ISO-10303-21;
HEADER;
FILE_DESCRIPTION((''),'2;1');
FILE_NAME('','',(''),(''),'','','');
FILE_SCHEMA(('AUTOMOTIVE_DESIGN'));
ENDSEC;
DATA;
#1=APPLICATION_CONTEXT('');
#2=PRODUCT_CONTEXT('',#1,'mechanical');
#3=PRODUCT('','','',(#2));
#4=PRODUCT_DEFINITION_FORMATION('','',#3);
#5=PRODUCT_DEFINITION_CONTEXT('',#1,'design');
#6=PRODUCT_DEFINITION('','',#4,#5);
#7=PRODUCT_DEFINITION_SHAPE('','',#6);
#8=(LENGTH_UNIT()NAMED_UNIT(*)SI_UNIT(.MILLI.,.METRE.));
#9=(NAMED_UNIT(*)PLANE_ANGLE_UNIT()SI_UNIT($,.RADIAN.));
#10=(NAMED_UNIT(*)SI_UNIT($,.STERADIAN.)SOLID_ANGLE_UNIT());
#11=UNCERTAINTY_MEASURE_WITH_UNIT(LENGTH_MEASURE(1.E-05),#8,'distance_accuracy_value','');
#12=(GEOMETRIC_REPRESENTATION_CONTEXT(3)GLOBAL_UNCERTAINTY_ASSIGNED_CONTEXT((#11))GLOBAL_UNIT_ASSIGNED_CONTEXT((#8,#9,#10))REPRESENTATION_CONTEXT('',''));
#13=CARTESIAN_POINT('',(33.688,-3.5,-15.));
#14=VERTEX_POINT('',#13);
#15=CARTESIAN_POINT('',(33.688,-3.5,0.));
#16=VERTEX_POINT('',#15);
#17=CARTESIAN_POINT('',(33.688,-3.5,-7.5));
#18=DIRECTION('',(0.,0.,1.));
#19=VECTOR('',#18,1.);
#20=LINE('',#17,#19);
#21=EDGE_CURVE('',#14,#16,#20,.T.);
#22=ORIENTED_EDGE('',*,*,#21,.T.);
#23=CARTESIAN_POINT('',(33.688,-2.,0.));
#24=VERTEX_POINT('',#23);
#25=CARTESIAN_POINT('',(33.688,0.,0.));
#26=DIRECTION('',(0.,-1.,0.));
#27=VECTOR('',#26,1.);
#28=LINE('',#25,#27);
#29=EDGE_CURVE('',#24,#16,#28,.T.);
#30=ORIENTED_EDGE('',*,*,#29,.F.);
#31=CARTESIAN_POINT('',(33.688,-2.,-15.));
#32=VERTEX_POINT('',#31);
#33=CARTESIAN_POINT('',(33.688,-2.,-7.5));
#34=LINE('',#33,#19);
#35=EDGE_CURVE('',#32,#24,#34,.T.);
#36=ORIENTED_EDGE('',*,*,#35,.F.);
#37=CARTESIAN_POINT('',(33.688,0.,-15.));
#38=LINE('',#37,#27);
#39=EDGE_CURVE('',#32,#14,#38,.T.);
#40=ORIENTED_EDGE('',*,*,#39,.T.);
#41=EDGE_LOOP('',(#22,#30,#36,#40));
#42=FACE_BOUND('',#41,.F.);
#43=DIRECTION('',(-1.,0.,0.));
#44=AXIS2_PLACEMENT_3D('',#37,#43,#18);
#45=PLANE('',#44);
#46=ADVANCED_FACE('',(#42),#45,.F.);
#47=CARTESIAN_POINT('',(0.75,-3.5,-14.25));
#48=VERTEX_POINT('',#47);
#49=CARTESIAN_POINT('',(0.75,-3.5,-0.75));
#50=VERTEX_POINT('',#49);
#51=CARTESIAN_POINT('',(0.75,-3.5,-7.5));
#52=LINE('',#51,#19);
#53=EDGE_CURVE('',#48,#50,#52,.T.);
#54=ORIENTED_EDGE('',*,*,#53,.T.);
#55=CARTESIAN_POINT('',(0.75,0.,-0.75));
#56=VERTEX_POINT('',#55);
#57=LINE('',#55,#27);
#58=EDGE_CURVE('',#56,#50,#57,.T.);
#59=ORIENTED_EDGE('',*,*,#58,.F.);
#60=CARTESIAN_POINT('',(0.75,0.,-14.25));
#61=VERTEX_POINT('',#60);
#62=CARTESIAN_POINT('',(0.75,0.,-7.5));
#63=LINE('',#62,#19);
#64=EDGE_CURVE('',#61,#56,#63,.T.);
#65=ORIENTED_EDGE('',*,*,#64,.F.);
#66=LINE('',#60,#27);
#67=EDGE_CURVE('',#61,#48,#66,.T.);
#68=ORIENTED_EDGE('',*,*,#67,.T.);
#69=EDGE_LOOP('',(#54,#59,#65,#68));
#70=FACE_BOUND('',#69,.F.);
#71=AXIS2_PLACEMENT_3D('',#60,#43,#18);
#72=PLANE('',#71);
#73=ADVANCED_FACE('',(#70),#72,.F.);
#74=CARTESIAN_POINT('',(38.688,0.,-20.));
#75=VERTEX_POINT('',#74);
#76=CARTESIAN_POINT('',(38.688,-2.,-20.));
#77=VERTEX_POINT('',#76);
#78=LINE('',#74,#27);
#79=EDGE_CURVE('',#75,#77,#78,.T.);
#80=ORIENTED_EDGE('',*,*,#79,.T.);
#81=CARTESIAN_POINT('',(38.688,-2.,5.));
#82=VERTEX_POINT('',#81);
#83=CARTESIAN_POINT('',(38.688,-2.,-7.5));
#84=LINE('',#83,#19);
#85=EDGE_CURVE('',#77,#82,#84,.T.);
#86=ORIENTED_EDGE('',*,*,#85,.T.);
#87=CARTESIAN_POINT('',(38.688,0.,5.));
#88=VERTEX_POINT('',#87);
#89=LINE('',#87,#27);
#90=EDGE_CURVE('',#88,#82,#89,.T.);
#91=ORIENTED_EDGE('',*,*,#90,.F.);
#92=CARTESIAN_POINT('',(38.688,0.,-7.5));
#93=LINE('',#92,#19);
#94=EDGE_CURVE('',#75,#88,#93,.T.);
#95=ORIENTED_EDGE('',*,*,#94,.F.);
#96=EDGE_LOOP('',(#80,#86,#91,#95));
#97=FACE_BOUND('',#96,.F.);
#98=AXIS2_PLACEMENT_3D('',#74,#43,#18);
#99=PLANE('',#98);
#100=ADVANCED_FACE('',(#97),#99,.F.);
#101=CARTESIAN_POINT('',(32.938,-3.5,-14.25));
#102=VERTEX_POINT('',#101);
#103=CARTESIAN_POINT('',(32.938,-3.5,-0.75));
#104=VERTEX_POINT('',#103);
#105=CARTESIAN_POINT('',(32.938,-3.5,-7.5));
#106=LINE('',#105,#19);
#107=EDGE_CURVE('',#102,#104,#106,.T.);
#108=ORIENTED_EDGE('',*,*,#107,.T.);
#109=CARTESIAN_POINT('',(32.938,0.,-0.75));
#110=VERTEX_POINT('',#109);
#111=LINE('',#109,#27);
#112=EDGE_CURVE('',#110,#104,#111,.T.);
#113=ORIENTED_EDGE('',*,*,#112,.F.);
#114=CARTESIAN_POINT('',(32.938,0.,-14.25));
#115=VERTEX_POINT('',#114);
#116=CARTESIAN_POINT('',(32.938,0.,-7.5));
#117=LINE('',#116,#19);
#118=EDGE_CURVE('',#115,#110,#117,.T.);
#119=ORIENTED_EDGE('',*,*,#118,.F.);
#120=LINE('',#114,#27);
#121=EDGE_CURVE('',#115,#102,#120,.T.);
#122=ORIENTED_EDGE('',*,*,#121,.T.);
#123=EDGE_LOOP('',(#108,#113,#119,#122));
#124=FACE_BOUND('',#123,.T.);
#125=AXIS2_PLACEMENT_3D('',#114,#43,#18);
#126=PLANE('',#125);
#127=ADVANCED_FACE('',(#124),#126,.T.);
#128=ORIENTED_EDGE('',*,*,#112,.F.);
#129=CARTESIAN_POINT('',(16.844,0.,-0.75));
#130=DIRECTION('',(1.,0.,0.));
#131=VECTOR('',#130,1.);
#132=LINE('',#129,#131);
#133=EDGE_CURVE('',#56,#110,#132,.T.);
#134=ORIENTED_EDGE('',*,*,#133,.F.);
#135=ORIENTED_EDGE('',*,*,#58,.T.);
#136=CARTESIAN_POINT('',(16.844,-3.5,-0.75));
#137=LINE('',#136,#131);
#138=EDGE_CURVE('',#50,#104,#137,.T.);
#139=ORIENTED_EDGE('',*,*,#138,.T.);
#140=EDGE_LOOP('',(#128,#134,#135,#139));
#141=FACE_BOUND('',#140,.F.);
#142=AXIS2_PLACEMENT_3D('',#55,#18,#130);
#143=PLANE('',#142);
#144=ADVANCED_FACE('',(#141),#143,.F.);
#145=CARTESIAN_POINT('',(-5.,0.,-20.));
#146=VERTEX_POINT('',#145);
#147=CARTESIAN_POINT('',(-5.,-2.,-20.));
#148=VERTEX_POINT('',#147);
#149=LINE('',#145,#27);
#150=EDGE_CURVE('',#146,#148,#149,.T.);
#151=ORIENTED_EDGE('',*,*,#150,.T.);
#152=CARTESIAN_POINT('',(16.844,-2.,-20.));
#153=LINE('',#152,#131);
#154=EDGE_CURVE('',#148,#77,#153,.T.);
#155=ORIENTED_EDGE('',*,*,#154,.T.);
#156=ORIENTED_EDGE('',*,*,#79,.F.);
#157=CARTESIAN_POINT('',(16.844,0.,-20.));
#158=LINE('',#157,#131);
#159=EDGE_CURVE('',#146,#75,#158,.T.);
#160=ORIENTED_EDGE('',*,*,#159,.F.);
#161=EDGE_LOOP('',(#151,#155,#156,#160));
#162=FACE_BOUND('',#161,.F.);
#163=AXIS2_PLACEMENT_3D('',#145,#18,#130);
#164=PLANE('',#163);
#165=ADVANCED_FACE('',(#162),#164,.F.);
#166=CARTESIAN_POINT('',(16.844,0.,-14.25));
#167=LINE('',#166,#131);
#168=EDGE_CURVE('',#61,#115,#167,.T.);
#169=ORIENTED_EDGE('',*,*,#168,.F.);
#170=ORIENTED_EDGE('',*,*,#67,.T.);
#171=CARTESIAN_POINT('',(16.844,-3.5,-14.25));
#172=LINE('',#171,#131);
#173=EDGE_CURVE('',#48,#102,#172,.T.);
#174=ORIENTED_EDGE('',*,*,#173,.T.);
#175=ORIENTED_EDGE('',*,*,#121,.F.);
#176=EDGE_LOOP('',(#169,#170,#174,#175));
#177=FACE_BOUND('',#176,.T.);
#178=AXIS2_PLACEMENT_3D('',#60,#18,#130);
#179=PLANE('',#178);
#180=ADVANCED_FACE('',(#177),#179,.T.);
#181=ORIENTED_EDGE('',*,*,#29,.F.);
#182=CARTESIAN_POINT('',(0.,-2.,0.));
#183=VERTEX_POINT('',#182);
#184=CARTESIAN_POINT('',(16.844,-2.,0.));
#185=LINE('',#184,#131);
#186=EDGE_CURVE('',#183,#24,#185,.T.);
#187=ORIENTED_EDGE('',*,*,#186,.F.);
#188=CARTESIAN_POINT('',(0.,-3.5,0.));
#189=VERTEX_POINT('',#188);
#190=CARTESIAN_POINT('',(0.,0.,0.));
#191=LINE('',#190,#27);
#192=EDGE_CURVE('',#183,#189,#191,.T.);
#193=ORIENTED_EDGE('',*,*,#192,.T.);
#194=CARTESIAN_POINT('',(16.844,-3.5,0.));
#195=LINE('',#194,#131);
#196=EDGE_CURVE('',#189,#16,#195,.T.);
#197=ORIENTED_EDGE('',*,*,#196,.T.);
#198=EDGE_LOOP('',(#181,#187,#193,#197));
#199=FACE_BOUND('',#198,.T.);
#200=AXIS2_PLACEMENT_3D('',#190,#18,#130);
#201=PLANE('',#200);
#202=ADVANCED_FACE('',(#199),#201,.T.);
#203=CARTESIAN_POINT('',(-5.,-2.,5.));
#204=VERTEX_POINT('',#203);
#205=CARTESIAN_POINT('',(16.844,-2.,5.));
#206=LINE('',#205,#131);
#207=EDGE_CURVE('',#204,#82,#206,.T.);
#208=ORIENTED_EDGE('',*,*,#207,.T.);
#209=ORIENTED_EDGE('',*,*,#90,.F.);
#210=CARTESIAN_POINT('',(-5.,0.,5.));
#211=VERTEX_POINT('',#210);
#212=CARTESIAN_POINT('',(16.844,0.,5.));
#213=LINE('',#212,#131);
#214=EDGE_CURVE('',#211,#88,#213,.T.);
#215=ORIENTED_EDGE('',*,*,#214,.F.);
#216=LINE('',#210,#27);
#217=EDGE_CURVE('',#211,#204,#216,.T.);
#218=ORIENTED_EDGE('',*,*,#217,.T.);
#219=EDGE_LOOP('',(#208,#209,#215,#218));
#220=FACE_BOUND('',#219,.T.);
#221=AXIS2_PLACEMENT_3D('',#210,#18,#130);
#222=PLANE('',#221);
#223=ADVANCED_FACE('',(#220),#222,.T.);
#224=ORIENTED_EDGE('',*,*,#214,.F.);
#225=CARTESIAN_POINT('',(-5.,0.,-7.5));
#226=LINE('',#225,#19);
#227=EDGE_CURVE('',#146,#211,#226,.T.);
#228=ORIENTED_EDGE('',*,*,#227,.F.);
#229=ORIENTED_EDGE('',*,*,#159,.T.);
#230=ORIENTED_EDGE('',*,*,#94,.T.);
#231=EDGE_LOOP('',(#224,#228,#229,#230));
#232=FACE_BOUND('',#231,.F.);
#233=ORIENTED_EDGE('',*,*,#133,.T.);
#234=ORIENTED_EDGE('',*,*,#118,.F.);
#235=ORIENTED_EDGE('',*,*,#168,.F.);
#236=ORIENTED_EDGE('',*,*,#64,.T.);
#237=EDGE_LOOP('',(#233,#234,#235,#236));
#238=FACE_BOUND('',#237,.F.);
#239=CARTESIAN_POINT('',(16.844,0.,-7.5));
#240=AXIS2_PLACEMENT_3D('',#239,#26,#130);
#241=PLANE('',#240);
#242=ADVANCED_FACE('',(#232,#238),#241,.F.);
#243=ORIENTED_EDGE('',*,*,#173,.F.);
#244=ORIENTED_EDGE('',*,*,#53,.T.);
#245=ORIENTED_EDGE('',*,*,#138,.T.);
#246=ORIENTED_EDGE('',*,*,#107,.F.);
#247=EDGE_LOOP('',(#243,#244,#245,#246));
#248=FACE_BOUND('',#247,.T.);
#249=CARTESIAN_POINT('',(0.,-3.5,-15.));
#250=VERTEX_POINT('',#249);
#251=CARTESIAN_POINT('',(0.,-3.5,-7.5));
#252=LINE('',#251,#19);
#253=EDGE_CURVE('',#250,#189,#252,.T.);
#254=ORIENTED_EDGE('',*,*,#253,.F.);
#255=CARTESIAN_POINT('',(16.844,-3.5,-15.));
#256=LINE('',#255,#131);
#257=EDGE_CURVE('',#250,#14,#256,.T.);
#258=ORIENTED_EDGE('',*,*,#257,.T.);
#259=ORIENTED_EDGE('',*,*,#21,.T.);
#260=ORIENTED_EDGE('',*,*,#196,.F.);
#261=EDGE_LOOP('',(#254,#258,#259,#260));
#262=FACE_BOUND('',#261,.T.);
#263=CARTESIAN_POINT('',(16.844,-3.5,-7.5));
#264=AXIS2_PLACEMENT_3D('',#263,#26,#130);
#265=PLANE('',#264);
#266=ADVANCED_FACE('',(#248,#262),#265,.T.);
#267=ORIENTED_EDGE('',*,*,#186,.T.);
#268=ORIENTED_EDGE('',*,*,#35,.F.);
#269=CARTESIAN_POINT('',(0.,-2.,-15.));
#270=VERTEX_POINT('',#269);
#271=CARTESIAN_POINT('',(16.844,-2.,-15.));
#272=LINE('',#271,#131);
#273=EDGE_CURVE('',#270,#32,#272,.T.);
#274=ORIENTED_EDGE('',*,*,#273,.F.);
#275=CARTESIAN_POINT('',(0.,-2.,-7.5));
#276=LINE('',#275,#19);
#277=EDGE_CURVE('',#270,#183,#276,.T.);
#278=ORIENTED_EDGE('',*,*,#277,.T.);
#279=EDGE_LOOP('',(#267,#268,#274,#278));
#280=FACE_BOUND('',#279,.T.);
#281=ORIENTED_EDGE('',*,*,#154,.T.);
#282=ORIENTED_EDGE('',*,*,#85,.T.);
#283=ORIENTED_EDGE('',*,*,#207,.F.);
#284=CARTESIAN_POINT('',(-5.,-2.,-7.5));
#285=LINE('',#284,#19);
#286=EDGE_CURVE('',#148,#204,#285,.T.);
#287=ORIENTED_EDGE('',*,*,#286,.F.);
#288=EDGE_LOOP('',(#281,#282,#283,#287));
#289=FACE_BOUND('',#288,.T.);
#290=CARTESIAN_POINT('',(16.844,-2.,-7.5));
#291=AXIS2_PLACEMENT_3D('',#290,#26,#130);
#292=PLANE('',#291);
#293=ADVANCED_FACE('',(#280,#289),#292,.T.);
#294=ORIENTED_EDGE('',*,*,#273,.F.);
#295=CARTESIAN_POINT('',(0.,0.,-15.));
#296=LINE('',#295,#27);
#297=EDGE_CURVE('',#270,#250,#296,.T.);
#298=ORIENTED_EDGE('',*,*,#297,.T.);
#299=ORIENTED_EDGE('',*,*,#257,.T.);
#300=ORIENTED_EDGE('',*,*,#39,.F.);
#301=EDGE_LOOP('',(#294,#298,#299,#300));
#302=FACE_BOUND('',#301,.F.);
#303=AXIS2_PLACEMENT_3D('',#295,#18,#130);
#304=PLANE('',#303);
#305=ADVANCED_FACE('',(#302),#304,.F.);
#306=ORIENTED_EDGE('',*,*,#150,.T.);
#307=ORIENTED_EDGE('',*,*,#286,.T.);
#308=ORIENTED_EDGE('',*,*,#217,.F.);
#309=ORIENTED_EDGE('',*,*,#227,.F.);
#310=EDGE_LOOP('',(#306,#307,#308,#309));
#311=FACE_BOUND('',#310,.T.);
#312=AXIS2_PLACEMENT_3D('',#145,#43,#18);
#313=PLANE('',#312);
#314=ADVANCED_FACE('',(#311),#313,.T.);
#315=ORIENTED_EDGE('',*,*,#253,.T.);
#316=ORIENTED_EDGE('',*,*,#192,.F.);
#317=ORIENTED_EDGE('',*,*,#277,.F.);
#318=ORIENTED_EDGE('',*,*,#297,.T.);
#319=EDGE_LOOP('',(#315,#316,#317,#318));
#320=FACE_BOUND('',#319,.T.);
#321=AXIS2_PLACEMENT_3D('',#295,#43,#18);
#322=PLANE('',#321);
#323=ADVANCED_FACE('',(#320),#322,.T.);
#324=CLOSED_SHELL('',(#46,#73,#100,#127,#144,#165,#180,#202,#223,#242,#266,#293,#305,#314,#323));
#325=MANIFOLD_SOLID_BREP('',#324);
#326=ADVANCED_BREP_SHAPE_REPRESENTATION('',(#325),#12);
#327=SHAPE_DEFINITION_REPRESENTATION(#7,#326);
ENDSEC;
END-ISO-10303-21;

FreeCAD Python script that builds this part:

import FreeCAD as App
import Part
import Sketcher

V = App.Vector


def add_polygon(sketch, points):
    """Adds a closed chain of lines whose ends are joined by coincident constraints."""
    first, n = sketch.GeometryCount, len(points)
    for a, b in zip(points, points[1:] + points[:1]):
        sketch.addGeometry(Part.LineSegment(App.Vector(*a, 0), App.Vector(*b, 0)), False)
    for i in range(n):
        sketch.addConstraint(Sketcher.Constraint("Coincident", first + i, 2, first + (i + 1) % n, 1))

doc = App.newDocument("Part")
body = doc.addObject("PartDesign::Body", "Body")

sketch1 = body.newObject("Sketcher::SketchObject", "Sketch")
sketch1.AttachmentSupport = (doc.getObject("XZ_Plane"), [""])
sketch1.MapMode = "FlatFace"
add_polygon(sketch1, [(0, 0), (0, -15), (33.688, -15), (33.688, 0)])
add_polygon(sketch1, [(32.938, -14.25), (0.75, -14.25), (0.75, -0.75), (32.938, -0.75)])
sketch1.addConstraint(Sketcher.Constraint("Vertical", 0))
sketch1.addConstraint(Sketcher.Constraint("Horizontal", 1))
sketch1.addConstraint(Sketcher.Constraint("Vertical", 2))
sketch1.addConstraint(Sketcher.Constraint("Horizontal", 3))
sketch1.addConstraint(Sketcher.Constraint("Horizontal", 4))
sketch1.addConstraint(Sketcher.Constraint("Vertical", 5))
sketch1.addConstraint(Sketcher.Constraint("Horizontal", 6))
sketch1.addConstraint(Sketcher.Constraint("Vertical", 7))
sketch1.addConstraint(Sketcher.Constraint("Coincident", 3, 2, -1, 1))
sketch1.addConstraint(Sketcher.Constraint("DistanceY", 0, 2, 0, 1, 15.0))
sketch1.addConstraint(Sketcher.Constraint("DistanceY", 5, 1, 5, 2, 13.5))
sketch1.addConstraint(Sketcher.Constraint("DistanceX", 1, 1, 1, 2, 33.688))
sketch1.addConstraint(Sketcher.Constraint("DistanceX", 4, 2, 4, 1, 32.188))
sketch1.addConstraint(Sketcher.Constraint("DistanceX", -1, 1, 4, 2, 0.75))
sketch1.addConstraint(Sketcher.Constraint("DistanceY", 4, 2, -1, 1, 14.25))
pad1 = body.newObject("PartDesign::Pad", "Pad")
pad1.Profile = sketch1
pad1.Length = 3.5

sketch2 = body.newObject("Sketcher::SketchObject", "Sketch001")
sketch2.AttachmentSupport = (doc.getObject("XZ_Plane"), [""])
sketch2.MapMode = "FlatFace"
add_polygon(sketch2, [(-5, 5), (-5, -20), (38.688, -20), (38.688, 5)])
add_polygon(sketch2, [(33.688, -15), (0, -15), (0, 0), (33.688, 0)])
sketch2.addConstraint(Sketcher.Constraint("Vertical", 0))
sketch2.addConstraint(Sketcher.Constraint("Horizontal", 1))
sketch2.addConstraint(Sketcher.Constraint("Vertical", 2))
sketch2.addConstraint(Sketcher.Constraint("Horizontal", 3))
sketch2.addConstraint(Sketcher.Constraint("Horizontal", 4))
sketch2.addConstraint(Sketcher.Constraint("Vertical", 5))
sketch2.addConstraint(Sketcher.Constraint("Horizontal", 6))
sketch2.addConstraint(Sketcher.Constraint("Vertical", 7))
sketch2.addConstraint(Sketcher.Constraint("Coincident", 5, 2, -1, 1))
sketch2.addConstraint(Sketcher.Constraint("DistanceY", 0, 2, 0, 1, 25.0))
sketch2.addConstraint(Sketcher.Constraint("DistanceY", 5, 1, 5, 2, 15.0))
sketch2.addConstraint(Sketcher.Constraint("DistanceX", 0, 2, -1, 1, 5.0))
sketch2.addConstraint(Sketcher.Constraint("DistanceY", 0, 2, -1, 1, 20.0))
sketch2.addConstraint(Sketcher.Constraint("DistanceX", 6, 2, 2, 2, 5.0))
sketch2.addConstraint(Sketcher.Constraint("DistanceX", 1, 1, 1, 2, 43.688))
pad2 = body.newObject("PartDesign::Pad", "Pad001")
pad2.Profile = sketch2
pad2.Length = 2

doc.recompute()
